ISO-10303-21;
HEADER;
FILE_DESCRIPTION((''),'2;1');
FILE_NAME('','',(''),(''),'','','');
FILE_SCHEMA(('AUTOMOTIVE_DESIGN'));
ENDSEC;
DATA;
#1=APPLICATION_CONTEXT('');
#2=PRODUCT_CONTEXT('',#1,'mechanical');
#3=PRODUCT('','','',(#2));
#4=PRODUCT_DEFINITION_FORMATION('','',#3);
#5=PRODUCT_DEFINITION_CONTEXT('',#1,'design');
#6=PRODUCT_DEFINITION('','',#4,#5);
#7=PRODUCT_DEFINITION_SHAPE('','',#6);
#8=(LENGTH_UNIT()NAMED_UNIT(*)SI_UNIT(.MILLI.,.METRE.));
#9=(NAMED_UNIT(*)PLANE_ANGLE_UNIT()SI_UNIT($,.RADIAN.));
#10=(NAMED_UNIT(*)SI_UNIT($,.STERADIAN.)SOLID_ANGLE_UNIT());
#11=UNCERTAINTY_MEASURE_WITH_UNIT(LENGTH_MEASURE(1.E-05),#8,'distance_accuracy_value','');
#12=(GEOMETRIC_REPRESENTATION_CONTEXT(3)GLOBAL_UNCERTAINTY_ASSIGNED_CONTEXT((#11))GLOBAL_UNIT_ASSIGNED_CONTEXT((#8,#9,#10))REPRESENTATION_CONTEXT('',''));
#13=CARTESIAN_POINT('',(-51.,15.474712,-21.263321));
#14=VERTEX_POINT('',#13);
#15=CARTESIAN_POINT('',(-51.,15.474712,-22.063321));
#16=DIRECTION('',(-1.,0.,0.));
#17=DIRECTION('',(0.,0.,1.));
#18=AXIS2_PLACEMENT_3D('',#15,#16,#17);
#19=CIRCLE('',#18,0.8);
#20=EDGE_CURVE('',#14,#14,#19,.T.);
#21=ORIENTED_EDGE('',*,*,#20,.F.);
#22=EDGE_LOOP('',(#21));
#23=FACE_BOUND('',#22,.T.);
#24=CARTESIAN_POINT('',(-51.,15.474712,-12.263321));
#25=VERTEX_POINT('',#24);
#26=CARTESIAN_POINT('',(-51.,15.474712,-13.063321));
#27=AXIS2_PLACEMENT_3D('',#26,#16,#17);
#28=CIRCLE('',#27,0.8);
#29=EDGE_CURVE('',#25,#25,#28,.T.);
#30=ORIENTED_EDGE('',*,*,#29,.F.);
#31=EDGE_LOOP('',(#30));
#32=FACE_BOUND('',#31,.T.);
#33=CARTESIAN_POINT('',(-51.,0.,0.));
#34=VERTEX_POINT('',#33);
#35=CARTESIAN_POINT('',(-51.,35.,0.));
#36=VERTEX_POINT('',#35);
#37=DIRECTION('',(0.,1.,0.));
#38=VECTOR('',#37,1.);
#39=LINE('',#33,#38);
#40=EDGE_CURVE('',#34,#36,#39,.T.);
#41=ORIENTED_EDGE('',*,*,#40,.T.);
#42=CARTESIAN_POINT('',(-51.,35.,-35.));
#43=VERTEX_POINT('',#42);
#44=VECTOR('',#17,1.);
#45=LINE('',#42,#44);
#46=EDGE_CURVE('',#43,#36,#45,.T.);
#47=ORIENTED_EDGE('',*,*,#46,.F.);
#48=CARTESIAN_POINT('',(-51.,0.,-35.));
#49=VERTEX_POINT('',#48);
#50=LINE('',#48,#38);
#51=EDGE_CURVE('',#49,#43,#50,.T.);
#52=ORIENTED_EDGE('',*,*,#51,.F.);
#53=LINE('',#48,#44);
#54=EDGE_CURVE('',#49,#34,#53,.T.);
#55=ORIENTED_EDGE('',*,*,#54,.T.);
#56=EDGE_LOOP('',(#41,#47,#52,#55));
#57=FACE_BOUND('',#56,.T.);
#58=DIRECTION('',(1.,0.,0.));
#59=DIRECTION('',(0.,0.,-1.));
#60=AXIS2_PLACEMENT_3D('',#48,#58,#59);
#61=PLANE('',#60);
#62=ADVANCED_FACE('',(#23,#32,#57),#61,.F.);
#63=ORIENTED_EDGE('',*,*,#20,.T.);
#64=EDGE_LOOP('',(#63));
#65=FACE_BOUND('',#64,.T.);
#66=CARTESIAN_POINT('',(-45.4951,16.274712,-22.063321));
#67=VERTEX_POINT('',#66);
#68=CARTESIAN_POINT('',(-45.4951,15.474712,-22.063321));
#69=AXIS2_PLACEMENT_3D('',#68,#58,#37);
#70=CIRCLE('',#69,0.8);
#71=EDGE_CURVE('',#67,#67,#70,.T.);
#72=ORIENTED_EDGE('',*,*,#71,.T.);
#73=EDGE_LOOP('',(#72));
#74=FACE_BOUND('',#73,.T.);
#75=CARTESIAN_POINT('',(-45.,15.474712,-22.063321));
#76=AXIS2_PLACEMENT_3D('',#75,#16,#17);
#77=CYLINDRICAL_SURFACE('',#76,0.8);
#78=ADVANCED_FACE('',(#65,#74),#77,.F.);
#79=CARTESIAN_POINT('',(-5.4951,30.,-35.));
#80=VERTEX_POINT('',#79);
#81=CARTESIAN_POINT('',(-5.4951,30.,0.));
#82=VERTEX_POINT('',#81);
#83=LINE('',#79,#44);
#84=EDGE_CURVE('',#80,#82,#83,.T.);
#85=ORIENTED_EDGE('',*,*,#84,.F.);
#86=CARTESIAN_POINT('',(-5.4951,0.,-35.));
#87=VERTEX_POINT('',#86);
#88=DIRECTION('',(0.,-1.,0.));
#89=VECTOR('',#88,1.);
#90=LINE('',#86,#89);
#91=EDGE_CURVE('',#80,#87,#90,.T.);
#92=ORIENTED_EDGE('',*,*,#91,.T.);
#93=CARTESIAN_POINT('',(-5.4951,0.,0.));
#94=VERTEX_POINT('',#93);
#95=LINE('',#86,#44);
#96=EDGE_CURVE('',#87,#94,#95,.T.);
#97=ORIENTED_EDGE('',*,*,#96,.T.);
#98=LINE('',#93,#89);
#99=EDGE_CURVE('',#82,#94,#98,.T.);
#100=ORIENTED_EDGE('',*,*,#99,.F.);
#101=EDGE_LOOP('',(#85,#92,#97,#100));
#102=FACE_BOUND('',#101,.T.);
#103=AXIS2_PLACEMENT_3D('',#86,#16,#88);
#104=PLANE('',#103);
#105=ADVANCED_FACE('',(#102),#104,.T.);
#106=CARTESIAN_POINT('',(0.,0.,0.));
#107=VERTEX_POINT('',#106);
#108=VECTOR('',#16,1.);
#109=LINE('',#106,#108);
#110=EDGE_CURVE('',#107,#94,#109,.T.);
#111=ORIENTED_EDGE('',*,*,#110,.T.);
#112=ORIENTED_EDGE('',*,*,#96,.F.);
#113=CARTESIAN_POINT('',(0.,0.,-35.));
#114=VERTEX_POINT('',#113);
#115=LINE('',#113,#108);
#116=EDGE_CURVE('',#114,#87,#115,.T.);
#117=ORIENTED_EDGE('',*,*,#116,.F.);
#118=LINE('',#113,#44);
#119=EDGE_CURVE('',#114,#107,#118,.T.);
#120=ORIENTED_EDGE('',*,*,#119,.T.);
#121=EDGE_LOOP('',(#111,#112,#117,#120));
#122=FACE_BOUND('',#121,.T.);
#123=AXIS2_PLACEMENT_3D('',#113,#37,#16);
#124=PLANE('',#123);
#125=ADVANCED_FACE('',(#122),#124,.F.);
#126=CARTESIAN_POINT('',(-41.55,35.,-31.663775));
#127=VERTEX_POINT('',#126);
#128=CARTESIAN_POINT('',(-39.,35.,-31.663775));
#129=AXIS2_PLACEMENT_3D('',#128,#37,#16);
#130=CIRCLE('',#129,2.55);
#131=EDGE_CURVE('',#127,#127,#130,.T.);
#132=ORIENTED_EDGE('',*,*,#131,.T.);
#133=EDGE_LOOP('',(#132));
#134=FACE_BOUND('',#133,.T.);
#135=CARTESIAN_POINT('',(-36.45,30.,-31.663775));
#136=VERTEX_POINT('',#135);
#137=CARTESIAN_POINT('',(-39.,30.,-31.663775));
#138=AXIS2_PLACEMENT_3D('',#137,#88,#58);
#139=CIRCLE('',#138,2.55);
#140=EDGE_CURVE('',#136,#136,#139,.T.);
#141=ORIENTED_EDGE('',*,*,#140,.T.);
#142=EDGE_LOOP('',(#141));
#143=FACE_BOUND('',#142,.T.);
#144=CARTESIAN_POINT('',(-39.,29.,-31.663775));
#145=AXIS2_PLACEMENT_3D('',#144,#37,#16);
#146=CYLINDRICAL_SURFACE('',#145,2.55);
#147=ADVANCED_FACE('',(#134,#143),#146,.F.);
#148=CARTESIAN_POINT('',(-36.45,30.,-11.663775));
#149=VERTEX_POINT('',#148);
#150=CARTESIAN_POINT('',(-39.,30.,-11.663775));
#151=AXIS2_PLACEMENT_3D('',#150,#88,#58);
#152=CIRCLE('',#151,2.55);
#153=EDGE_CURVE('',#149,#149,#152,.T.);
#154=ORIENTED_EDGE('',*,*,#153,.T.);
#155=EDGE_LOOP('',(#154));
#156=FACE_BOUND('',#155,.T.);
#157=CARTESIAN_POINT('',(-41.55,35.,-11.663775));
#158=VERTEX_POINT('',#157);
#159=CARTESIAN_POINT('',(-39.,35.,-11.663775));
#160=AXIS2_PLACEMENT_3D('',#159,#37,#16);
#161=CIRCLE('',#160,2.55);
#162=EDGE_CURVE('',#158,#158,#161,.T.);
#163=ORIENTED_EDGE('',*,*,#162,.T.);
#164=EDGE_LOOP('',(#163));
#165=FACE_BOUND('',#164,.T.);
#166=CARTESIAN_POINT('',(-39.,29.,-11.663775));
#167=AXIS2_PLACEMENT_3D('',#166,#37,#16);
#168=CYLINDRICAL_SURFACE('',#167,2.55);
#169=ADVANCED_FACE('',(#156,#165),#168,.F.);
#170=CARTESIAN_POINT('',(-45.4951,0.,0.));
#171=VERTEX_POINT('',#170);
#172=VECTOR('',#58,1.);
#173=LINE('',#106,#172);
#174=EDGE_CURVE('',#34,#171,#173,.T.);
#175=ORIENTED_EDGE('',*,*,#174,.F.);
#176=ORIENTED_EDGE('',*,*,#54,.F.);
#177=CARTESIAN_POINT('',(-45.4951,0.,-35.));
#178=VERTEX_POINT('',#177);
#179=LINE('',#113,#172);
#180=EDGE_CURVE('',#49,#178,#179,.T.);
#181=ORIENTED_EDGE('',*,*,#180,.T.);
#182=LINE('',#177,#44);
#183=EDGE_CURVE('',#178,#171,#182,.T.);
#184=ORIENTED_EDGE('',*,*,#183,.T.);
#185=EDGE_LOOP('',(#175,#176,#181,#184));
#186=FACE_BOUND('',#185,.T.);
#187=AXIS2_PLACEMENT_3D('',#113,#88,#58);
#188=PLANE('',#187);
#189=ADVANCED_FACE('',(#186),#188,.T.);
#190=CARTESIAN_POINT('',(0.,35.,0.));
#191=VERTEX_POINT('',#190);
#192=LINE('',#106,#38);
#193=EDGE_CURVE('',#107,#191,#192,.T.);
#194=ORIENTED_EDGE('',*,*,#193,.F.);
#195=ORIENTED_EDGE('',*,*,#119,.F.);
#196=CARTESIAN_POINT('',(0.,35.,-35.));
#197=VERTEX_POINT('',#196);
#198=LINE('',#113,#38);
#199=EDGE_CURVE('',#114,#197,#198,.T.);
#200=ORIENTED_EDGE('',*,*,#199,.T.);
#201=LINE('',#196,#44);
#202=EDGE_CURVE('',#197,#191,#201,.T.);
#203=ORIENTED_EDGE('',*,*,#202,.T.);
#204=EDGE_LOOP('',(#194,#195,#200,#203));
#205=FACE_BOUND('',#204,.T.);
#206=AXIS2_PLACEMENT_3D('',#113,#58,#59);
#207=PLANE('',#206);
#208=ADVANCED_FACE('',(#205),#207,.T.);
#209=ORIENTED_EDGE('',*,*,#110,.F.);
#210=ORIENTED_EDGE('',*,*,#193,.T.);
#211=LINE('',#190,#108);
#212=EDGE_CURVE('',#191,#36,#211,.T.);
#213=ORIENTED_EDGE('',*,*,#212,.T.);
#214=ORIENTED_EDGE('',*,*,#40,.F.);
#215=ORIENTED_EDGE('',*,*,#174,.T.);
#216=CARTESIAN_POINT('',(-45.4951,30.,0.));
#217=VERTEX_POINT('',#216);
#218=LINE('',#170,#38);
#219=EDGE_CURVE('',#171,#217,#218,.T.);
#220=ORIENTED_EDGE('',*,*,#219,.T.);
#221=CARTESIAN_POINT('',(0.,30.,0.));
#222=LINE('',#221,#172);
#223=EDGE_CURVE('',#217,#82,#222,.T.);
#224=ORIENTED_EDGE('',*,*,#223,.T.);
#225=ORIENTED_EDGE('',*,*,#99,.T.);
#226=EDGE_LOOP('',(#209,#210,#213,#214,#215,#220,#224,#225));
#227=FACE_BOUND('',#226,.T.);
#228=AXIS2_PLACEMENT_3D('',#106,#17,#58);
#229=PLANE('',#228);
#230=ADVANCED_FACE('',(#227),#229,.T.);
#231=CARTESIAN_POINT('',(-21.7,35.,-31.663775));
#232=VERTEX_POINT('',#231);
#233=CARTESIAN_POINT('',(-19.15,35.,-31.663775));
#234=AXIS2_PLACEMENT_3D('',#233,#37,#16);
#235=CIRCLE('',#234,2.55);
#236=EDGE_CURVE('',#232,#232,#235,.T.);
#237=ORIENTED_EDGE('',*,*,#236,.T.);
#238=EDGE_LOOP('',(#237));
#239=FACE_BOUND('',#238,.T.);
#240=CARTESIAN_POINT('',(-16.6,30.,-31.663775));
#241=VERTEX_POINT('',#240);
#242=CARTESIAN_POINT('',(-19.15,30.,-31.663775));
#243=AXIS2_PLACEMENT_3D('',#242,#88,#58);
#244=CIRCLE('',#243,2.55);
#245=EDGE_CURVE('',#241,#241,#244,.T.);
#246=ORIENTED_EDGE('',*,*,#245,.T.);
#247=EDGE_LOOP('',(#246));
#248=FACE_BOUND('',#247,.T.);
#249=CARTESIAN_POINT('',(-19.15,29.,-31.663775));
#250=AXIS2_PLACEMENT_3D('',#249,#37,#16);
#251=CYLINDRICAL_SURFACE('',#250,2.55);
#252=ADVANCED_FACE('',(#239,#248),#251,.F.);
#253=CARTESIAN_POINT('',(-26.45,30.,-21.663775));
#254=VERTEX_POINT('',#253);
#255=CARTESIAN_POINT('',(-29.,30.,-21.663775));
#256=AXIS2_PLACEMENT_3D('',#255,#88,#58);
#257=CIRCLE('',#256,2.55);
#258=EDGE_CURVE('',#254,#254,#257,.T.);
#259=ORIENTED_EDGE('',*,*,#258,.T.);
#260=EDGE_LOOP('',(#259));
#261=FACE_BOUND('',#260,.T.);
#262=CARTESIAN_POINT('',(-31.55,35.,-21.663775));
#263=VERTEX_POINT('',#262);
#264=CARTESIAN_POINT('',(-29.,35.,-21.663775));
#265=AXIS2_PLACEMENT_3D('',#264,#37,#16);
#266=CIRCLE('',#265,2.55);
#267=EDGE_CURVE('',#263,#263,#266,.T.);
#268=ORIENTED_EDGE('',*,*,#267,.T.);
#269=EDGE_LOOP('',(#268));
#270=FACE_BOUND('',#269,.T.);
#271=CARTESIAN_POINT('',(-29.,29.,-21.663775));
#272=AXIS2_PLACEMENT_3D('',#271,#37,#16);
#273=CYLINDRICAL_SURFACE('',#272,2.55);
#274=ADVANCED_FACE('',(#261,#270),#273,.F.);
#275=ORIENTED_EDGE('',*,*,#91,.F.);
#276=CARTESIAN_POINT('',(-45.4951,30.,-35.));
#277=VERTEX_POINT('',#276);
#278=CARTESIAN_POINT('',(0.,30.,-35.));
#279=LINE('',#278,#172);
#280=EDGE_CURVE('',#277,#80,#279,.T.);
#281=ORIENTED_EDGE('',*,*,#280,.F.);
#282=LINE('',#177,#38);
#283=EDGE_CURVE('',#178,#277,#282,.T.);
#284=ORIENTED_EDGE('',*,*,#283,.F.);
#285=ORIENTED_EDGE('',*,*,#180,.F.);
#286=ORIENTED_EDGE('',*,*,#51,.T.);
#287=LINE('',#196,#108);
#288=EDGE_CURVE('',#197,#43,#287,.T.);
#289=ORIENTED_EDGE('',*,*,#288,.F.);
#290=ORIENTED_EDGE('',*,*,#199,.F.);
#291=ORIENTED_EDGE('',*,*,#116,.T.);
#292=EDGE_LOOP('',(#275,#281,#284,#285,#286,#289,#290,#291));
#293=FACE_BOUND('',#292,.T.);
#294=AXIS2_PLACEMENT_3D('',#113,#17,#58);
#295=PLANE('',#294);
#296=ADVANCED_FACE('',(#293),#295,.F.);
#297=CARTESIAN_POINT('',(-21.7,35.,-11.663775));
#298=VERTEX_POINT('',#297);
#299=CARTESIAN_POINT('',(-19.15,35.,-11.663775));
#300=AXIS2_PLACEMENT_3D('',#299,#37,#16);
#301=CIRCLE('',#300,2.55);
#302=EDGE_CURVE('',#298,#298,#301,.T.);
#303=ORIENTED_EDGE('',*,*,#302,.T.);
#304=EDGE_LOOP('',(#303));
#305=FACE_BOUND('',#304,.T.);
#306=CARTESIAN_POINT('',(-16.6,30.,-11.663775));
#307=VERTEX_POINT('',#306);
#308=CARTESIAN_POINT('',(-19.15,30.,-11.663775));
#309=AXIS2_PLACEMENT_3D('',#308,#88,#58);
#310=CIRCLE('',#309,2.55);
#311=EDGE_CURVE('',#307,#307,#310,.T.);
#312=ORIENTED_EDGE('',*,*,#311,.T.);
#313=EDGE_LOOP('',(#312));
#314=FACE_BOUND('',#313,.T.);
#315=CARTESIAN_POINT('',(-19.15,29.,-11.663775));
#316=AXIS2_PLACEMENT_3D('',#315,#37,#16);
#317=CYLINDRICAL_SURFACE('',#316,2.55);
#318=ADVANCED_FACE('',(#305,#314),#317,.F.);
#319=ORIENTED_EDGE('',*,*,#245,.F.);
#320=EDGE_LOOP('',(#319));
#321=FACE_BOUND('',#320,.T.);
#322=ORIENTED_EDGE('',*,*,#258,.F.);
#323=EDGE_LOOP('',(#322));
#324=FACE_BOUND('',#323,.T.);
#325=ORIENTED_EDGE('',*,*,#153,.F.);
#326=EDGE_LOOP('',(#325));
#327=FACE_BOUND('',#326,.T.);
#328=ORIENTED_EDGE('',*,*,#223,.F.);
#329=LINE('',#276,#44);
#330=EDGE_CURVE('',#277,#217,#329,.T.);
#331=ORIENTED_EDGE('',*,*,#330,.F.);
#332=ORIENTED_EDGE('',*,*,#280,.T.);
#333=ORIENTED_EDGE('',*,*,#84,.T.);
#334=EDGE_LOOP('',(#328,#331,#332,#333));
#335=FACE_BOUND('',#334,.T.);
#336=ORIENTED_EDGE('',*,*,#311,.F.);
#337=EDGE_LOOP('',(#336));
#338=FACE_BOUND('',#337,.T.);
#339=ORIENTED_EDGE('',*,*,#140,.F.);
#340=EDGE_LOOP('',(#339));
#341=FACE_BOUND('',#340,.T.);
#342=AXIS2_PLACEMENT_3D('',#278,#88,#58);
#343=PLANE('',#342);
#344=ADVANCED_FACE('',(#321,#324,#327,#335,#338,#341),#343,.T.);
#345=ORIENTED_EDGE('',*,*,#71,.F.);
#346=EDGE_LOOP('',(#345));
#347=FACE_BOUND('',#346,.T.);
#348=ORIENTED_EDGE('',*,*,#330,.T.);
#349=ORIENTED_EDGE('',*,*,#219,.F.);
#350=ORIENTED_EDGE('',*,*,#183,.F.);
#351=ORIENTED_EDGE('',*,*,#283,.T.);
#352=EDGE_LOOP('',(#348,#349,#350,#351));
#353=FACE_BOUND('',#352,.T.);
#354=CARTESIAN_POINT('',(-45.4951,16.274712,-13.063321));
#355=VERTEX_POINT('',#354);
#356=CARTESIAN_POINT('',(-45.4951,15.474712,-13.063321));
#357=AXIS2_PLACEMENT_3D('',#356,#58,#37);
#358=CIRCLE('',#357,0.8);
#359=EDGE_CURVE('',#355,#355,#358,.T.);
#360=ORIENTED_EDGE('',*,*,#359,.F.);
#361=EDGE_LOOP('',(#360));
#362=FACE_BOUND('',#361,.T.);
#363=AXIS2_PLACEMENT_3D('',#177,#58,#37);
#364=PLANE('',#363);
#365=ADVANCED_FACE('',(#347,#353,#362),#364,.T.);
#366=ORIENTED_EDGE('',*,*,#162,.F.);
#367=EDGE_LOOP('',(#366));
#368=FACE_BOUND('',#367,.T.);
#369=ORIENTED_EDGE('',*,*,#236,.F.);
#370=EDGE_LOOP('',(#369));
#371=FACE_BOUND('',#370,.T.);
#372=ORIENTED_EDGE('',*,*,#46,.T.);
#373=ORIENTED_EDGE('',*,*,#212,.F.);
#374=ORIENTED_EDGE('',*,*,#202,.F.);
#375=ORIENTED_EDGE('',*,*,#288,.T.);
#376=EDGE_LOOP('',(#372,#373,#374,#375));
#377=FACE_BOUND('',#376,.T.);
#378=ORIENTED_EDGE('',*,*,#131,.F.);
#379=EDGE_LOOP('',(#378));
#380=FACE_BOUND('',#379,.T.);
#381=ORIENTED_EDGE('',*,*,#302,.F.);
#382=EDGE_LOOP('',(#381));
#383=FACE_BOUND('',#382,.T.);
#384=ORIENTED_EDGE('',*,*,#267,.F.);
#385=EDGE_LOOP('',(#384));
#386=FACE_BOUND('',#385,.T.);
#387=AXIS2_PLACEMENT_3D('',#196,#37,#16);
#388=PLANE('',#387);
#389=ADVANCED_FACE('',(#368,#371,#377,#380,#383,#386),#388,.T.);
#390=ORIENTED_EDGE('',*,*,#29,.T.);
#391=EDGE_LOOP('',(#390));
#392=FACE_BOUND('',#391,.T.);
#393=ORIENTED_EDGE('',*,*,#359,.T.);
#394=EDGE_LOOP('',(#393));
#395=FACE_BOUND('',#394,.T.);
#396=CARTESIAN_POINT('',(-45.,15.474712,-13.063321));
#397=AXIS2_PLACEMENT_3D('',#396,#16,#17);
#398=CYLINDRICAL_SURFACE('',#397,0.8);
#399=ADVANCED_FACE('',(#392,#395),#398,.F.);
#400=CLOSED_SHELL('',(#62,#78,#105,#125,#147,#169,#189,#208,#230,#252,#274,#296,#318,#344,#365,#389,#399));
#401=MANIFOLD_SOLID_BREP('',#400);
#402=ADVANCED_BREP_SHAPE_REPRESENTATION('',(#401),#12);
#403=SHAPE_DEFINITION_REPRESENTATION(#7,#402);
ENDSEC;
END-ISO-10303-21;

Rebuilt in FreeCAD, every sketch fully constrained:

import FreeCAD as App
import Part
import Sketcher

doc = App.newDocument("Part")
body = doc.addObject("PartDesign::Body", "Body")

sketch1 = doc.addObject("Sketcher::SketchObject", "Sketch")
body.addObject(sketch1)
sketch1.AttachmentSupport = (doc.XY_Plane, [""])
sketch1.MapMode = "FlatFace"
sketch1.addGeometry(Part.LineSegment(App.Vector(-45.4951, 30, 0), App.Vector(-5.4951, 30, 0)), False)
sketch1.addGeometry(Part.LineSegment(App.Vector(-5.4951, 30, 0), App.Vector(-5.4951, 0, 0)), False)
sketch1.addGeometry(Part.LineSegment(App.Vector(-5.4951, 0, 0), App.Vector(0, 0, 0)), False)
sketch1.addGeometry(Part.LineSegment(App.Vector(0, 0, 0), App.Vector(0, 35, 0)), False)
sketch1.addGeometry(Part.LineSegment(App.Vector(0, 35, 0), App.Vector(-51, 35, 0)), False)
sketch1.addGeometry(Part.LineSegment(App.Vector(-51, 35, 0), App.Vector(-51, 0, 0)), False)
sketch1.addGeometry(Part.LineSegment(App.Vector(-51, 0, 0), App.Vector(-45.4951, 0, 0)), False)
sketch1.addGeometry(Part.LineSegment(App.Vector(-45.4951, 0, 0), App.Vector(-45.4951, 30, 0)), False)
sketch1.addConstraint(Sketcher.Constraint("Coincident", 0, 2, 1, 1))
sketch1.addConstraint(Sketcher.Constraint("Coincident", 1, 2, 2, 1))
sketch1.addConstraint(Sketcher.Constraint("Coincident", 2, 2, 3, 1))
sketch1.addConstraint(Sketcher.Constraint("Coincident", 3, 2, 4, 1))
sketch1.addConstraint(Sketcher.Constraint("Coincident", 4, 2, 5, 1))
sketch1.addConstraint(Sketcher.Constraint("Coincident", 5, 2, 6, 1))
sketch1.addConstraint(Sketcher.Constraint("Coincident", 6, 2, 7, 1))
sketch1.addConstraint(Sketcher.Constraint("Coincident", 7, 2, 0, 1))
sketch1.addConstraint(Sketcher.Constraint("Horizontal", 0))
sketch1.addConstraint(Sketcher.Constraint("Vertical", 1))
sketch1.addConstraint(Sketcher.Constraint("Horizontal", 2))
sketch1.addConstraint(Sketcher.Constraint("Vertical", 3))
sketch1.addConstraint(Sketcher.Constraint("Horizontal", 4))
sketch1.addConstraint(Sketcher.Constraint("Vertical", 5))
sketch1.addConstraint(Sketcher.Constraint("Horizontal", 6))
sketch1.addConstraint(Sketcher.Constraint("Vertical", 7))
sketch1.addConstraint(Sketcher.Constraint("Coincident", 2, 2, -1, 1))
sketch1.addConstraint(Sketcher.Constraint("PointOnObject", 5, 2, -1))
sketch1.addConstraint(Sketcher.Constraint("DistanceX", 0, 1, 0, 2, 40.0))
sketch1.addConstraint(Sketcher.Constraint("DistanceX", 4, 2, 4, 1, 51.0))
sketch1.addConstraint(Sketcher.Constraint("DistanceY", 1, 2, 1, 1, 30.0))
sketch1.addConstraint(Sketcher.Constraint("DistanceY", 3, 1, 3, 2, 35.0))
sketch1.addConstraint(Sketcher.Constraint("DistanceX", 2, 1, 2, 2, 5.4951))
pad1 = doc.addObject("PartDesign::Pad", "Pad")
body.addObject(pad1)
pad1.Profile = sketch1
pad1.Length = 35
pad1.Reversed = True

sketch2 = doc.addObject("Sketcher::SketchObject", "Sketch001")
body.addObject(sketch2)
sketch2.AttachmentSupport = (doc.YZ_Plane, [""])
sketch2.MapMode = "FlatFace"
sketch2.AttachmentOffset = App.Placement(App.Vector(0, 0, -51), App.Rotation())
sketch2.addGeometry(Part.Circle(App.Vector(15.474712, -13.063321, 0), App.Vector(0, 0, 1), 0.8), False)
sketch2.addGeometry(Part.Circle(App.Vector(15.474712, -22.063321, 0), App.Vector(0, 0, 1), 0.8), False)
sketch2.addConstraint(Sketcher.Constraint("Equal", 0, 1))
sketch2.addConstraint(Sketcher.Constraint("Vertical", 0, 3, 1, 3))
sketch2.addConstraint(Sketcher.Constraint("Diameter", 0, 1.6))
sketch2.addConstraint(Sketcher.Constraint("DistanceY", 1, 3, 0, 3, 9.0))
sketch2.addConstraint(Sketcher.Constraint("DistanceX", -1, 1, 0, 3, 15.474712))
sketch2.addConstraint(Sketcher.Constraint("DistanceY", 0, 3, -1, 1, 13.063321))
pocket1 = doc.addObject("PartDesign::Pocket", "Pocket")
body.addObject(pocket1)
pocket1.Profile = sketch2
pocket1.Length = 6
pocket1.Reversed = True

sketch3 = doc.addObject("Sketcher::SketchObject", "Sketch002")
body.addObject(sketch3)
sketch3.AttachmentSupport = (doc.XZ_Plane, [""])
sketch3.MapMode = "FlatFace"
sketch3.AttachmentOffset = App.Placement(App.Vector(0, 0, -35), App.Rotation())
sketch3.addGeometry(Part.Circle(App.Vector(-39, -31.663775, 0), App.Vector(0, 0, 1), 2.55), False)
sketch3.addGeometry(Part.Circle(App.Vector(-39, -11.663775, 0), App.Vector(0, 0, 1), 2.55), False)
sketch3.addGeometry(Part.Circle(App.Vector(-19.15, -31.663775, 0), App.Vector(0, 0, 1), 2.55), False)
sketch3.addGeometry(Part.Circle(App.Vector(-19.15, -11.663775, 0), App.Vector(0, 0, 1), 2.55), False)
sketch3.addGeometry(Part.Circle(App.Vector(-29, -21.663775, 0), App.Vector(0, 0, 1), 2.55), False)
sketch3.addConstraint(Sketcher.Constraint("Equal", 0, 1))
sketch3.addConstraint(Sketcher.Constraint("Equal", 1, 2))
sketch3.addConstraint(Sketcher.Constraint("Equal", 2, 3))
sketch3.addConstraint(Sketcher.Constraint("Equal", 3, 4))
sketch3.addConstraint(Sketcher.Constraint("Horizontal", 0, 3, 2, 3))
sketch3.addConstraint(Sketcher.Constraint("Horizontal", 1, 3, 3, 3))
sketch3.addConstraint(Sketcher.Constraint("Vertical", 0, 3, 1, 3))
sketch3.addConstraint(Sketcher.Constraint("Vertical", 2, 3, 3, 3))
sketch3.addConstraint(Sketcher.Constraint("Diameter", 0, 5.1))
sketch3.addConstraint(Sketcher.Constraint("DistanceX", 0, 3, -1, 1, 39.0))
sketch3.addConstraint(Sketcher.Constraint("DistanceX", 4, 3, -1, 1, 29.0))
sketch3.addConstraint(Sketcher.Constraint("DistanceY", 0, 3, 1, 3, 20.0))
sketch3.addConstraint(Sketcher.Constraint("DistanceY", 4, 3, 3, 3, 10.0))
sketch3.addConstraint(Sketcher.Constraint("DistanceX", 2, 3, -1, 1, 19.15))
sketch3.addConstraint(Sketcher.Constraint("DistanceY", 0, 3, -1, 1, 31.663775))
pocket2 = doc.addObject("PartDesign::Pocket", "Pocket001")
body.addObject(pocket2)
pocket2.Profile = sketch3
pocket2.Length = 6
pocket2.Reversed = True

doc.recompute()
